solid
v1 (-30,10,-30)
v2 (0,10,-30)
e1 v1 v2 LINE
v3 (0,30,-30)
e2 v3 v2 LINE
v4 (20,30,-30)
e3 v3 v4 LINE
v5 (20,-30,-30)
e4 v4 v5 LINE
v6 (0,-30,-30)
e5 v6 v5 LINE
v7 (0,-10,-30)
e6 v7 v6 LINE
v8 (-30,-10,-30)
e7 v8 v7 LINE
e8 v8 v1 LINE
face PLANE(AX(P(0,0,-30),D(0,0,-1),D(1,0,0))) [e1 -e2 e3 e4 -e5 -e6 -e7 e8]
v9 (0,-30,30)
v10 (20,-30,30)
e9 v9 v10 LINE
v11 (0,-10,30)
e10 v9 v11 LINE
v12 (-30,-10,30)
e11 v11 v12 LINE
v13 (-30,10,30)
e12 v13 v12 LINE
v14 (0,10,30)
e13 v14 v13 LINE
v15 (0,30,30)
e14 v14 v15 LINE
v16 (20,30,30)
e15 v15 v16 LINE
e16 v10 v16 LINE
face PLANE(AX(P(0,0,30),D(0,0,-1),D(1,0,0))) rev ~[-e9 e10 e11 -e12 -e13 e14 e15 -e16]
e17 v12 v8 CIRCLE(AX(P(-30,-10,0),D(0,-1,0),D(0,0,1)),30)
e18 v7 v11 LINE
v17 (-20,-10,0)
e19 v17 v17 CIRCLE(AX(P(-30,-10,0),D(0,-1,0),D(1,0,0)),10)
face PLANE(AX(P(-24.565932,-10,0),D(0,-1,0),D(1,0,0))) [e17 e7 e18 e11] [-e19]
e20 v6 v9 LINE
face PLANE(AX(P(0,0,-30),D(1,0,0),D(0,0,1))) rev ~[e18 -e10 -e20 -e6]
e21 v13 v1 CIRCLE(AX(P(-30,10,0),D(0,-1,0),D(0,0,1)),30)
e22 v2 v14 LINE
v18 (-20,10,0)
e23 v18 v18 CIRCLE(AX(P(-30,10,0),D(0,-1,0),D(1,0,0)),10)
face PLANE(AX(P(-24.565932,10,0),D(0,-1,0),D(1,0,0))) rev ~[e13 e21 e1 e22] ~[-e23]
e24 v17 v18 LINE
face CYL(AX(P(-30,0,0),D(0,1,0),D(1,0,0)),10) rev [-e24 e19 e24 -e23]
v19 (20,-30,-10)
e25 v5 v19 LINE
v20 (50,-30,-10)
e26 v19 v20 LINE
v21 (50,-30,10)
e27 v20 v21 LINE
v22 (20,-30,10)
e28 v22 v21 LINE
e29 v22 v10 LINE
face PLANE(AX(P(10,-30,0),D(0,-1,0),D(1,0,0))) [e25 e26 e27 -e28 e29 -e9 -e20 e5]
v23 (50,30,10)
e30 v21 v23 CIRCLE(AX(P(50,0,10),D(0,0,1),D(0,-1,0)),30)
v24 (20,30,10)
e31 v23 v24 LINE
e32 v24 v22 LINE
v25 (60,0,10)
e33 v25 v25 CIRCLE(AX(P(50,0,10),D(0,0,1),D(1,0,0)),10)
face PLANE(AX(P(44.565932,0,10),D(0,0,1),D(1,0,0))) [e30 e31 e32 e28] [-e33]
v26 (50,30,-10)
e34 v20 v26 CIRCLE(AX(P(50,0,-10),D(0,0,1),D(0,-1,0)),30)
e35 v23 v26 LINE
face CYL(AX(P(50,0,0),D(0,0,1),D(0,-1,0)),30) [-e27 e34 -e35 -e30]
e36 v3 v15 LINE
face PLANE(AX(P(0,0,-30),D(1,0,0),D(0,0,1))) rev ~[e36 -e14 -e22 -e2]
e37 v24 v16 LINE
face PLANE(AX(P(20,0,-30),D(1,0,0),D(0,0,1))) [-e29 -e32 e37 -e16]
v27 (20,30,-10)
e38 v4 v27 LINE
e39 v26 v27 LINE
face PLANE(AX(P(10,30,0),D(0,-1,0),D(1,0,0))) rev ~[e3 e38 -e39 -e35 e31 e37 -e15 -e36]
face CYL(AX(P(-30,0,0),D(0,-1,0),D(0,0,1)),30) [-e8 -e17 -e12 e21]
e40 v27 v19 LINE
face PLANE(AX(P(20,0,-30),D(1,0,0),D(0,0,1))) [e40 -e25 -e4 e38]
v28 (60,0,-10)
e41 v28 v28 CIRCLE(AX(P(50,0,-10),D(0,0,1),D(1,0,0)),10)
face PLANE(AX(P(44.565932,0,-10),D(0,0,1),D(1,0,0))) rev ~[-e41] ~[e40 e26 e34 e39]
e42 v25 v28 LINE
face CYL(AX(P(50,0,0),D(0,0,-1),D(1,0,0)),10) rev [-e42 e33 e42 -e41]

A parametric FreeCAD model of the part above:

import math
import FreeCAD as App
import Part
import Sketcher
from FreeCAD import Vector
Q = App.Units.Quantity

doc = App.newDocument("Part")
body = doc.addObject("PartDesign::Body", "Body")

# Sketch on XZ plane
sketch1 = body.newObject("Sketcher::SketchObject", "Sketch")
sketch1.AttachmentSupport = (doc.getObject("XZ_Plane"), [""])
sketch1.MapMode = "FlatFace"
sketch1.addGeometry(Part.LineSegment(Vector(0, 30, 0), Vector(0, -30, 0)), False)
sketch1.addGeometry(Part.LineSegment(Vector(0, -30, 0), Vector(20, -30, 0)), False)
sketch1.addGeometry(Part.LineSegment(Vector(20, -30, 0), Vector(20, 30, 0)), False)
sketch1.addGeometry(Part.LineSegment(Vector(20, 30, 0), Vector(0, 30, 0)), False)
sketch1.addConstraint(Sketcher.Constraint("Coincident", 0, 2, 1, 1))
sketch1.addConstraint(Sketcher.Constraint("Coincident", 1, 2, 2, 1))
sketch1.addConstraint(Sketcher.Constraint("Coincident", 2, 2, 3, 1))
sketch1.addConstraint(Sketcher.Constraint("Coincident", 3, 2, 0, 1))
sketch1.addConstraint(Sketcher.Constraint("Vertical", 0))
sketch1.addConstraint(Sketcher.Constraint("Horizontal", 1))
sketch1.addConstraint(Sketcher.Constraint("Vertical", 2))
sketch1.addConstraint(Sketcher.Constraint("Horizontal", 3))
sketch1.addConstraint(Sketcher.Constraint("Symmetric", 0, 2, 3, 2, -1, 1))
sketch1.addConstraint(Sketcher.Constraint("DistanceX", 1, 1, 1, 2, Q("20 mm")))
sketch1.addConstraint(Sketcher.Constraint("DistanceY", 0, 2, 0, 1, Q("60 mm")))
pad1 = body.newObject("PartDesign::Pad", "Pad")
pad1.Profile = sketch1
pad1.Length = 60
pad1.Midplane = True

# Sketch on XZ plane
sketch2 = body.newObject("Sketcher::SketchObject", "Sketch001")
sketch2.AttachmentSupport = (doc.getObject("XZ_Plane"), [""])
sketch2.MapMode = "FlatFace"
sketch2.addGeometry(Part.LineSegment(Vector(0, -30, 0), Vector(0, 30, 0)), False)
sketch2.addGeometry(Part.LineSegment(Vector(0, 30, 0), Vector(-30, 30, 0)), False)
sketch2.addGeometry(Part.ArcOfCircle(Part.Circle(Vector(-30, 0, 0), Vector(0, 0, 1), 30), math.radians(90), math.radians(270)), False)
sketch2.addGeometry(Part.LineSegment(Vector(-30, -30, 0), Vector(0, -30, 0)), False)
sketch2.addGeometry(Part.Circle(Vector(-30, 0, 0), Vector(0, 0, 1), 10), False)
sketch2.addConstraint(Sketcher.Constraint("Coincident", 0, 2, 1, 1))
sketch2.addConstraint(Sketcher.Constraint("Tangent", 1, 2, 2, 1))
sketch2.addConstraint(Sketcher.Constraint("Tangent", 2, 2, 3, 1))
sketch2.addConstraint(Sketcher.Constraint("Coincident", 3, 2, 0, 1))
sketch2.addConstraint(Sketcher.Constraint("Vertical", 0))
sketch2.addConstraint(Sketcher.Constraint("Horizontal", 1))
sketch2.addConstraint(Sketcher.Constraint("Horizontal", 3))
sketch2.addConstraint(Sketcher.Constraint("Coincident", 4, 3, 2, 3))
sketch2.addConstraint(Sketcher.Constraint("Symmetric", 0, 2, 3, 2, -1, 1))
sketch2.addConstraint(Sketcher.Constraint("Diameter", 4, Q("20 mm")))
sketch2.addConstraint(Sketcher.Constraint("Radius", 2, Q("30 mm")))
sketch2.addConstraint(Sketcher.Constraint("DistanceX", 1, 2, 1, 1, Q("30 mm")))
pad2 = body.newObject("PartDesign::Pad", "Pad001")
pad2.Profile = sketch2
pad2.Length = 20
pad2.Midplane = True

# Sketch on XY plane
sketch3 = body.newObject("Sketcher::SketchObject", "Sketch002")
sketch3.AttachmentSupport = (doc.getObject("XY_Plane"), [""])
sketch3.MapMode = "FlatFace"
sketch3.addGeometry(Part.LineSegment(Vector(20, 30, 0), Vector(20, -30, 0)), False)
sketch3.addGeometry(Part.LineSegment(Vector(20, -30, 0), Vector(50, -30, 0)), False)
sketch3.addGeometry(Part.ArcOfCircle(Part.Circle(Vector(50, 0, 0), Vector(0, 0, 1), 30), math.radians(-90), math.radians(90)), False)
sketch3.addGeometry(Part.LineSegment(Vector(50, 30, 0), Vector(20, 30, 0)), False)
sketch3.addGeometry(Part.Circle(Vector(50, 0, 0), Vector(0, 0, 1), 10), False)
sketch3.addConstraint(Sketcher.Constraint("Coincident", 0, 2, 1, 1))
sketch3.addConstraint(Sketcher.Constraint("Tangent", 1, 2, 2, 1))
sketch3.addConstraint(Sketcher.Constraint("Tangent", 2, 2, 3, 1))
sketch3.addConstraint(Sketcher.Constraint("Coincident", 3, 2, 0, 1))
sketch3.addConstraint(Sketcher.Constraint("Vertical", 0))
sketch3.addConstraint(Sketcher.Constraint("Horizontal", 1))
sketch3.addConstraint(Sketcher.Constraint("Horizontal", 3))
sketch3.addConstraint(Sketcher.Constraint("Coincident", 4, 3, 2, 3))
sketch3.addConstraint(Sketcher.Constraint("PointOnObject", 2, 3, -1))
sketch3.addConstraint(Sketcher.Constraint("Diameter", 4, Q("20 mm")))
sketch3.addConstraint(Sketcher.Constraint("Radius", 2, Q("30 mm")))
sketch3.addConstraint(Sketcher.Constraint("DistanceX", 1, 1, 1, 2, Q("30 mm")))
sketch3.addConstraint(Sketcher.Constraint("DistanceX", -1, 1, 2, 3, Q("50 mm")))
pad3 = body.newObject("PartDesign::Pad", "Pad002")
pad3.Profile = sketch3
pad3.Length = 20
pad3.Midplane = True

doc.recompute()
